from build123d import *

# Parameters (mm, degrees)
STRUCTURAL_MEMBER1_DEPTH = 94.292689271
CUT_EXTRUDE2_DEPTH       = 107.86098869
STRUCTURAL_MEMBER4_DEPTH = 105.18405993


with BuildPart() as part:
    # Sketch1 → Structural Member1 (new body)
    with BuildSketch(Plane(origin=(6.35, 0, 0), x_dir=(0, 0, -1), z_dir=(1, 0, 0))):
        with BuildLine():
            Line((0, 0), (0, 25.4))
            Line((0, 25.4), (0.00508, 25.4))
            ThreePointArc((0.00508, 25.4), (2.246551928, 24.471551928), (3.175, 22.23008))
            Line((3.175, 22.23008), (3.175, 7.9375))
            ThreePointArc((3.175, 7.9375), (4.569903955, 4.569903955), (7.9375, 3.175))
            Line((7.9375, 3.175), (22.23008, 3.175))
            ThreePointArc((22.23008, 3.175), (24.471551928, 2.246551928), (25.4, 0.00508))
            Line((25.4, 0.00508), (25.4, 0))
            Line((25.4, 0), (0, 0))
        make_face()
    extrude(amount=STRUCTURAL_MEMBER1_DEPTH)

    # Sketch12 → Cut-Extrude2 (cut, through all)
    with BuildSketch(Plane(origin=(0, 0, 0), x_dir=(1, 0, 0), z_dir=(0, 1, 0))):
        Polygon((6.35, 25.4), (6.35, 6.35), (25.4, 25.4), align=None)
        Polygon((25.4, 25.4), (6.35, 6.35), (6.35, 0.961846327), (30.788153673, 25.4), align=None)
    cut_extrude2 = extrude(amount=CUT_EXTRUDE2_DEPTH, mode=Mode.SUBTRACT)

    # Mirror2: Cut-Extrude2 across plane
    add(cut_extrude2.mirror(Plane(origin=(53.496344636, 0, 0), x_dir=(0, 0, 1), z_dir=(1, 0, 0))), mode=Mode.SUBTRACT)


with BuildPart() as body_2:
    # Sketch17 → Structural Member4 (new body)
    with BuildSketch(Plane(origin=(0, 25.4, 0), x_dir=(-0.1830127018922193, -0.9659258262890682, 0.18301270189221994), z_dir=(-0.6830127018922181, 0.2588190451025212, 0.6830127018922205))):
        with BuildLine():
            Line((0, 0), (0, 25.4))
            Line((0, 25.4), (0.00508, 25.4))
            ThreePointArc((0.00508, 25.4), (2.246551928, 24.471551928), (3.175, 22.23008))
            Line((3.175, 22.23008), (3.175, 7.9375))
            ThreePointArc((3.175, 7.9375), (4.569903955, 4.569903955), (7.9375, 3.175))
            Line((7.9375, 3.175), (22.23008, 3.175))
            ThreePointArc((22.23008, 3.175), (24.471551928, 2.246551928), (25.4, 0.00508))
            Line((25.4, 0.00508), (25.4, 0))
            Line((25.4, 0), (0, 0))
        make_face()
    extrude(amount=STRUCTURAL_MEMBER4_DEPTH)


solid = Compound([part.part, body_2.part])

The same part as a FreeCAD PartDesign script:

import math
import FreeCAD as App
import Part
import Sketcher
from FreeCAD import Vector
Q = App.Units.Quantity

doc = App.newDocument("Part")
body = doc.addObject("PartDesign::Body", "Body")

# Sketch on YZ plane
sketch1 = body.newObject("Sketcher::SketchObject", "Sketch")
sketch1.AttachmentSupport = (doc.getObject("YZ_Plane"), [""])
sketch1.MapMode = "FlatFace"
sketch1.AttachmentOffset = App.Placement(Vector(0, 0, 0.25 * 25.4), App.Rotation())
sketch1.addGeometry([
    Part.LineSegment(Vector(25.4, 0, 0), Vector(0, 0, 0)),  # 0
    Part.LineSegment(Vector(0, 0, 0), Vector(0, -25.4, 0)),  # 1
    Part.LineSegment(Vector(0, -25.4, 0), Vector(0.005, -25.4, 0)),  # 2
    Part.ArcOfCircle(Part.Circle(Vector(0.005, -22.23, 0), Vector(0, 0, 1), 3.17), math.radians(-90), math.radians(0)),  # 3
    Part.LineSegment(Vector(3.175, -22.23, 0), Vector(3.175, -7.938, 0)),  # 4
    Part.ArcOfCircle(Part.Circle(Vector(7.938, -7.938, 0), Vector(0, 0, 1), 4.763), math.radians(90), math.radians(180)),  # 5
    Part.LineSegment(Vector(7.938, -3.175, 0), Vector(22.23, -3.175, 0)),  # 6
    Part.ArcOfCircle(Part.Circle(Vector(22.23, -0.005, 0), Vector(0, 0, 1), 3.17), math.radians(-90), math.radians(0)),  # 7
    Part.LineSegment(Vector(25.4, -0.005, 0), Vector(25.4, 0, 0)),  # 8
], False)
sketch1.addConstraint([
    Sketcher.Constraint("Coincident", 0, 2, 1, 1),
    Sketcher.Constraint("Coincident", 1, 2, 2, 1),
    Sketcher.Constraint("Tangent", 2, 2, 3, 1),
    Sketcher.Constraint("Tangent", 3, 2, 4, 1),
    Sketcher.Constraint("Tangent", 4, 2, 5, 2),
    Sketcher.Constraint("Tangent", 5, 1, 6, 1),
    Sketcher.Constraint("Tangent", 6, 2, 7, 1),
    Sketcher.Constraint("Tangent", 7, 2, 8, 1),
    Sketcher.Constraint("Coincident", 8, 2, 0, 1),
    Sketcher.Constraint("Horizontal", 0),
    Sketcher.Constraint("Vertical", 1),
    Sketcher.Constraint("Vertical", 4),
    Sketcher.Constraint("Horizontal", 6),
    Sketcher.Constraint("Coincident", 0, 2, -1, 1),
    Sketcher.Constraint("Equal", 3, 7),
    Sketcher.Constraint("Vertical", 3, 3, 2, 2),
    Sketcher.Constraint("Equal", 0, 1),
    Sketcher.Constraint("Equal", 6, 4),
    Sketcher.Constraint("Equal", 2, 8),
    Sketcher.Constraint("DistanceX", 0, 2, 0, 1, Q("1 in")),
    Sketcher.Constraint("Radius", 5, Q("0.1875 in")),
    Sketcher.Constraint("Radius", 3, Q("0.1248 in")),
    Sketcher.Constraint("DistanceX", 2, 1, 2, 2, Q("0.0002 in")),
])
pad1 = body.newObject("PartDesign::Pad", "Pad")
pad1.Profile = sketch1
pad1.Length = 94.292689

# Sketch on XZ plane
sketch2 = body.newObject("Sketcher::SketchObject", "Sketch001")
sketch2.AttachmentSupport = (doc.getObject("XZ_Plane"), [""])
sketch2.MapMode = "FlatFace"
sketch2.addGeometry([
    Part.LineSegment(Vector(6, -25, 0), Vector(6, -1, 0)),
    Part.LineSegment(Vector(6, -1, 0), Vector(31, -25, 0)),
    Part.LineSegment(Vector(31, -25, 0), Vector(6, -25, 0)),
], False)
sketch2.addConstraint([
    Sketcher.Constraint("Coincident", 0, 2, 1, 1),
    Sketcher.Constraint("Coincident", 1, 2, 2, 1),
    Sketcher.Constraint("Coincident", 2, 2, 0, 1),
    Sketcher.Constraint("Vertical", 0),
    Sketcher.Constraint("Horizontal", 2),
    Sketcher.Constraint("Equal", 2, 0),
    Sketcher.Constraint("DistanceY", 1, 2, -1, 1, Q("1 in")),
    Sketcher.Constraint("DistanceX", -1, 1, 0, 2, Q("0.25 in")),
    Sketcher.Constraint("Distance", 1, Q("34.560768 mm")),
])
pocket1 = body.newObject("PartDesign::Pocket", "Pocket")
pocket1.Profile = sketch2
pocket1.Type = "ThroughAll"
doc.recompute()

datumplane = body.newObject("PartDesign::Plane", "DatumPlane")
datumplane.AttachmentSupport = (doc.getObject("YZ_Plane"), [""])
datumplane.MapMode = "FlatFace"
datumplane.AttachmentOffset = App.Placement(Vector(0, 0, 53.496345), App.Rotation())
mirrored = body.newObject("PartDesign::Mirrored", "Mirrored")
mirrored.Originals = [pocket1]
mirrored.MirrorPlane = (datumplane, [""])
body.Tip = mirrored
body2 = doc.addObject("PartDesign::Body", "Body001")

# Sketch on an angled plane
sketch3 = body2.newObject("Sketcher::SketchObject", "Sketch002")
sketch3.Placement = App.Placement(Vector(0, 25.4, 0), App.Rotation(Vector(-0.183012702, -0.965925826, 0.183012702), Vector(0.707106781, 0, 0.707106781), Vector(-0.683012702, 0.258819045, 0.683012702), "ZXY"))
sketch3.addGeometry([
    Part.LineSegment(Vector(0, 25.4, 0), Vector(0, 0, 0)),  # 0
    Part.LineSegment(Vector(0, 0, 0), Vector(25.4, 0, 0)),  # 1
    Part.LineSegment(Vector(25.4, 0, 0), Vector(25.4, 0.005, 0)),  # 2
    Part.ArcOfCircle(Part.Circle(Vector(22.23, 0.005, 0), Vector(0, 0, 1), 3.17), math.radians(0), math.radians(90)),  # 3
    Part.LineSegment(Vector(22.23, 3.175, 0), Vector(7.937, 3.175, 0)),  # 4
    Part.ArcOfCircle(Part.Circle(Vector(7.937, 7.937, 0), Vector(0, 0, 1), 4.763), math.radians(-180), math.radians(-90)),  # 5
    Part.LineSegment(Vector(3.175, 7.937, 0), Vector(3.175, 22.23, 0)),  # 6
    Part.ArcOfCircle(Part.Circle(Vector(0.005, 22.23, 0), Vector(0, 0, 1), 3.17), math.radians(0), math.radians(90)),  # 7
    Part.LineSegment(Vector(0.005, 25.4, 0), Vector(0, 25.4, 0)),  # 8
], False)
sketch3.addConstraint([
    Sketcher.Constraint("Coincident", 0, 2, 1, 1),
    Sketcher.Constraint("Coincident", 1, 2, 2, 1),
    Sketcher.Constraint("Tangent", 2, 2, 3, 1),
    Sketcher.Constraint("Tangent", 3, 2, 4, 1),
    Sketcher.Constraint("Tangent", 4, 2, 5, 2),
    Sketcher.Constraint("Tangent", 5, 1, 6, 1),
    Sketcher.Constraint("Tangent", 6, 2, 7, 1),
    Sketcher.Constraint("Tangent", 7, 2, 8, 1),
    Sketcher.Constraint("Coincident", 8, 2, 0, 1),
    Sketcher.Constraint("Vertical", 0),
    Sketcher.Constraint("Horizontal", 1),
    Sketcher.Constraint("Horizontal", 4),
    Sketcher.Constraint("Vertical", 6),
    Sketcher.Constraint("Coincident", 0, 2, -1, 1),
    Sketcher.Constraint("Equal", 3, 7),
    Sketcher.Constraint("Horizontal", 3, 3, 2, 2),
    Sketcher.Constraint("Equal", 1, 0),
    Sketcher.Constraint("Equal", 8, 2),
    Sketcher.Constraint("Equal", 4, 6),
    Sketcher.Constraint("DistanceX", 1, 1, 1, 2, Q("1 in")),
    Sketcher.Constraint("Radius", 5, Q("0.1875 in")),
    Sketcher.Constraint("Radius", 3, Q("0.1248 in")),
    Sketcher.Constraint("DistanceX", 4, 2, 4, 1, Q("0.5627 in")),
])
pad2 = body2.newObject("PartDesign::Pad", "Pad001")
pad2.Profile = sketch3
pad2.Length = 105.18406

doc.recompute()
